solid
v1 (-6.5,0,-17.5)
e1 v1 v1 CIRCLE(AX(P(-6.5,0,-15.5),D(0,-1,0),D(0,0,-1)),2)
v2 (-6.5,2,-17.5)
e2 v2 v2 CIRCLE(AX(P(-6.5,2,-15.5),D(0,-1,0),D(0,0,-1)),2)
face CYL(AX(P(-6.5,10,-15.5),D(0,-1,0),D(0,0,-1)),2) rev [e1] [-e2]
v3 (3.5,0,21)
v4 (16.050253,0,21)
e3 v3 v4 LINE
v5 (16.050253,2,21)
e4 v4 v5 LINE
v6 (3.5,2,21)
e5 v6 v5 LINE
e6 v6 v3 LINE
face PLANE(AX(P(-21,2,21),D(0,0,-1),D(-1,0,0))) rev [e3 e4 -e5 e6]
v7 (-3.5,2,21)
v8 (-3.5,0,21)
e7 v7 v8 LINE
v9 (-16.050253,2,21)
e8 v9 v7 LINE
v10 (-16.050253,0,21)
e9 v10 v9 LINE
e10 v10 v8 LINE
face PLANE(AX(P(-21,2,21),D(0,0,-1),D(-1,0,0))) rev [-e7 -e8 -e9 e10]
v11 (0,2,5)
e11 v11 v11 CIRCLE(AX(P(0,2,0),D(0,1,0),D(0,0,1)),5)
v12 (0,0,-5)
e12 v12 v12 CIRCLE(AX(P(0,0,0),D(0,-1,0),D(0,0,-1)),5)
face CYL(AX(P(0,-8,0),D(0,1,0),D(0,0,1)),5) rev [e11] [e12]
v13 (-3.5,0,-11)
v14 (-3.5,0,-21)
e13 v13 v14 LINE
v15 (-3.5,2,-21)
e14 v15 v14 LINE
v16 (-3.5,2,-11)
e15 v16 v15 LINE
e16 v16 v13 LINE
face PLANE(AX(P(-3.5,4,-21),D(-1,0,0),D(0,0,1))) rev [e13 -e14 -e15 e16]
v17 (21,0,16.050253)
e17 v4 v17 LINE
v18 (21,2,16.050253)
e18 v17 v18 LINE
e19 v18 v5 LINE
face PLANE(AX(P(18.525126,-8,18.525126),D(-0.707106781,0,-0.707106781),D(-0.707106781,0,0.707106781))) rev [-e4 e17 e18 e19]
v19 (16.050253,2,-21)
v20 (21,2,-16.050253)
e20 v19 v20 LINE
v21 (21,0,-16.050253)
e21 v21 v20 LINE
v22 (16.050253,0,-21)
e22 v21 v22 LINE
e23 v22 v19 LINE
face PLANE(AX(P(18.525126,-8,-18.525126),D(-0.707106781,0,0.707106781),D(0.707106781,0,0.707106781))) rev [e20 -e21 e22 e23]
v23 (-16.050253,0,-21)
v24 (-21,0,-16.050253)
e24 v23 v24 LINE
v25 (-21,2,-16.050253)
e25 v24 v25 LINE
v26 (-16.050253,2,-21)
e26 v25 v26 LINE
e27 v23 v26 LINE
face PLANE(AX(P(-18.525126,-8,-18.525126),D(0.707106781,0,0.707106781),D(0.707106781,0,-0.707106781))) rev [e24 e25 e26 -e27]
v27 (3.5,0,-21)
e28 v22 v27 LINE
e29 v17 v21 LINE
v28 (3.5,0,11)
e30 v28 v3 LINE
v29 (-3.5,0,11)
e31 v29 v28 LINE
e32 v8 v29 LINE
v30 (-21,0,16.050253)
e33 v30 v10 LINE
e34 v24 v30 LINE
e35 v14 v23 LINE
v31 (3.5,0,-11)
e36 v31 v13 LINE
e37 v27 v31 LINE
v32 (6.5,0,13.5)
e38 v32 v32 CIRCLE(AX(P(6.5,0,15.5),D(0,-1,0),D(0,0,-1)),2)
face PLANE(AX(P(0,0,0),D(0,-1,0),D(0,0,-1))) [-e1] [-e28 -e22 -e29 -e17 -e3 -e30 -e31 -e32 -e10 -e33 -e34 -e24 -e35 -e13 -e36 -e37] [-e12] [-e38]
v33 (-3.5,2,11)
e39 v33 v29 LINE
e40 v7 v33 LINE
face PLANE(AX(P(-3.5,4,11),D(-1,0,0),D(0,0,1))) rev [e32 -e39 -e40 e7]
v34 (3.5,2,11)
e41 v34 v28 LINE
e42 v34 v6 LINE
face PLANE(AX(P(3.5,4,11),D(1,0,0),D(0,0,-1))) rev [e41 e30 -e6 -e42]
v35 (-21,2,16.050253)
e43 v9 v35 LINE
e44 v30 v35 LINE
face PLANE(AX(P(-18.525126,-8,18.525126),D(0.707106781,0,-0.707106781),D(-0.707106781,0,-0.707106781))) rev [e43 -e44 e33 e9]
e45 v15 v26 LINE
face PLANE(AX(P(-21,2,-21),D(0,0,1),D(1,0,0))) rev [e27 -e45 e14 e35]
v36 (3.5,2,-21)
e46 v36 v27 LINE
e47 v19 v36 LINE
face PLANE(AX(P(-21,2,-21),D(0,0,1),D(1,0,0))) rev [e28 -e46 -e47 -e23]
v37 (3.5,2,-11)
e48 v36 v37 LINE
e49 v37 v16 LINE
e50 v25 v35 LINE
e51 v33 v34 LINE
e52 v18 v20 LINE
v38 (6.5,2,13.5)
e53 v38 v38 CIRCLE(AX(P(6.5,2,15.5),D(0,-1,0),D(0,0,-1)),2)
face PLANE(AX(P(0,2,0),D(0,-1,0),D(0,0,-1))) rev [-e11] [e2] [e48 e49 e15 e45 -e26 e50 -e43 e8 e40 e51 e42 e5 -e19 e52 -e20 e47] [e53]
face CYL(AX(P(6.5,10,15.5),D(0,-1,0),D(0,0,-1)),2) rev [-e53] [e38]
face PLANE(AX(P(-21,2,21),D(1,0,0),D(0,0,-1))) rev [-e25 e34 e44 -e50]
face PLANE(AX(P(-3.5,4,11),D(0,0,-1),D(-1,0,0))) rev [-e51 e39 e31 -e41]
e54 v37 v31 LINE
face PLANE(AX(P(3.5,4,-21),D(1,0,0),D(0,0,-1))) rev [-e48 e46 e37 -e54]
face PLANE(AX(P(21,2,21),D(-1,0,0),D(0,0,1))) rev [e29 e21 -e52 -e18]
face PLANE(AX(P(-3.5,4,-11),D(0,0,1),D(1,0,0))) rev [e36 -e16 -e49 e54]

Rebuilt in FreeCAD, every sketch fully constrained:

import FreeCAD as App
import Part
import Sketcher
from FreeCAD import Vector


def add_polygon(sketch, points):
    """Adds a closed chain of lines whose ends are joined by coincident constraints."""
    first, n = sketch.GeometryCount, len(points)
    for a, b in zip(points, points[1:] + points[:1]):
        sketch.addGeometry(Part.LineSegment(App.Vector(*a, 0), App.Vector(*b, 0)), False)
    for i in range(n):
        sketch.addConstraint(Sketcher.Constraint("Coincident", first + i, 2, first + (i + 1) % n, 1))

doc = App.newDocument("Part")
body = doc.addObject("PartDesign::Body", "Body")

sketch1 = doc.addObject("Sketcher::SketchObject", "Sketch")
body.addObject(sketch1)
sketch1.AttachmentSupport = (doc.XZ_Plane, [""])
sketch1.MapMode = "FlatFace"
add_polygon(sketch1, [(-21, -21), (-21, 21), (21, 21), (21, -21)])
sketch1.addConstraint([
    Sketcher.Constraint("Vertical", 0),
    Sketcher.Constraint("Horizontal", 1),
    Sketcher.Constraint("Vertical", 2),
    Sketcher.Constraint("Horizontal", 3),
    Sketcher.Constraint("Symmetric", 0, 2, 2, 2, -1, 1),
    Sketcher.Constraint("Equal", 3, 0),
    Sketcher.Constraint("DistanceX", 1, 1, 1, 2, 42.0),
])
pad1 = doc.addObject("PartDesign::Pad", "Pad")
body.addObject(pad1)
pad1.Profile = sketch1
pad1.Length = 2
pad1.Reversed = True

sketch2 = doc.addObject("Sketcher::SketchObject", "Sketch001")
body.addObject(sketch2)
sketch2.AttachmentSupport = (doc.XZ_Plane, [""])
sketch2.MapMode = "FlatFace"
sketch2.AttachmentOffset = App.Placement(Vector(0, 0, -2), App.Rotation())
add_polygon(sketch2, [(-16.050253, -21), (-21, -21), (-21, -16.050253)])
add_polygon(sketch2, [(21, -21), (16.050253, -21), (21, -16.050253)])
add_polygon(sketch2, [(21, 16.050253), (16.050253, 21), (21, 21)])
add_polygon(sketch2, [(-16.050253, 21), (-21, 16.050253), (-21, 21)])
sketch2.addConstraint([
    Sketcher.Constraint("Horizontal", 0),
    Sketcher.Constraint("Vertical", 1),
    Sketcher.Constraint("Horizontal", 3),
    Sketcher.Constraint("Vertical", 5),
    Sketcher.Constraint("Horizontal", 7),
    Sketcher.Constraint("Vertical", 8),
    Sketcher.Constraint("Vertical", 10),
    Sketcher.Constraint("Horizontal", 11),
    Sketcher.Constraint("Symmetric", 2, 2, 6, 2, -1, 1),
    Sketcher.Constraint("Symmetric", 1, 2, 8, 2, -1, 1),
    Sketcher.Constraint("Symmetric", 4, 2, 9, 2, -1, 1),
    Sketcher.Constraint("Symmetric", 3, 2, 11, 2, -1, 1),
    Sketcher.Constraint("Symmetric", 2, 2, 3, 2, -2),
    Sketcher.Constraint("Symmetric", 1, 2, 4, 2, -2),
    Sketcher.Constraint("Perpendicular", 2, 4),
    Sketcher.Constraint("Distance", 2, 7.0),
    Sketcher.Constraint("DistanceX", 0, 2, -1, 1, 21.0),
    Sketcher.Constraint("DistanceY", 0, 2, -1, 1, 21.0),
])
pocket1 = doc.addObject("PartDesign::Pocket", "Pocket")
body.addObject(pocket1)
pocket1.Profile = sketch2
pocket1.Length = 10
pocket1.Reversed = True

sketch3 = doc.addObject("Sketcher::SketchObject", "Sketch002")
body.addObject(sketch3)
sketch3.AttachmentSupport = (doc.XZ_Plane, [""])
sketch3.MapMode = "FlatFace"
sketch3.AttachmentOffset = App.Placement(Vector(0, 0, -2), App.Rotation())
sketch3.addGeometry(Part.Circle(Vector(0, 0, 0), Vector(0, 0, 1), 5), False)
sketch3.addConstraint([
    Sketcher.Constraint("Coincident", 0, 3, -1, 1),
    Sketcher.Constraint("Diameter", 0, 10.0),
])
pocket2 = doc.addObject("PartDesign::Pocket", "Pocket001")
body.addObject(pocket2)
pocket2.Profile = sketch3
pocket2.Length = 10
pocket2.Reversed = True

sketch4 = doc.addObject("Sketcher::SketchObject", "Sketch003")
body.addObject(sketch4)
sketch4.AttachmentSupport = (doc.XZ_Plane, [""])
sketch4.MapMode = "FlatFace"
sketch4.addGeometry([
    Part.Circle(Vector(6.5, 15.5, 0), Vector(0, 0, 1), 2),
    Part.Circle(Vector(-6.5, -15.5, 0), Vector(0, 0, 1), 2),
], False)
sketch4.addConstraint([
    Sketcher.Constraint("Equal", 0, 1),
    Sketcher.Constraint("Symmetric", 0, 3, 1, 3, -1, 1),
    Sketcher.Constraint("Diameter", 0, 4.0),
    Sketcher.Constraint("DistanceX", 1, 3, 0, 3, 13.0),
    Sketcher.Constraint("DistanceY", 1, 3, 0, 3, 31.0),
])
pocket3 = doc.addObject("PartDesign::Pocket", "Pocket002")
body.addObject(pocket3)
pocket3.Profile = sketch4
pocket3.Length = 10

sketch5 = doc.addObject("Sketcher::SketchObject", "Sketch004")
body.addObject(sketch5)
sketch5.AttachmentSupport = (doc.XZ_Plane, [""])
sketch5.MapMode = "FlatFace"
add_polygon(sketch5, [(-3.5, -11), (-3.5, -21), (3.5, -21), (3.5, -11)])
add_polygon(sketch5, [(-3.5, 21), (-3.5, 11), (3.5, 11), (3.5, 21)])
sketch5.addConstraint([
    Sketcher.Constraint("Vertical", 0),
    Sketcher.Constraint("Horizontal", 1),
    Sketcher.Constraint("Vertical", 2),
    Sketcher.Constraint("Horizontal", 3),
    Sketcher.Constraint("Vertical", 4),
    Sketcher.Constraint("Horizontal", 5),
    Sketcher.Constraint("Vertical", 6),
    Sketcher.Constraint("Horizontal", 7),
    Sketcher.Constraint("Symmetric", 2, 2, 4, 2, -1, 1),
    Sketcher.Constraint("Symmetric", 0, 2, 6, 2, -1, 1),
    Sketcher.Constraint("Vertical", 3, 2, 4, 2),
    Sketcher.Constraint("DistanceX", 1, 1, 1, 2, 7.0),
    Sketcher.Constraint("DistanceY", 0, 2, 0, 1, 10.0),
    Sketcher.Constraint("DistanceY", 0, 2, -1, 1, 21.0),
])
pocket4 = doc.addObject("PartDesign::Pocket", "Pocket003")
body.addObject(pocket4)
pocket4.Profile = sketch5
pocket4.Length = 4

doc.recompute()
